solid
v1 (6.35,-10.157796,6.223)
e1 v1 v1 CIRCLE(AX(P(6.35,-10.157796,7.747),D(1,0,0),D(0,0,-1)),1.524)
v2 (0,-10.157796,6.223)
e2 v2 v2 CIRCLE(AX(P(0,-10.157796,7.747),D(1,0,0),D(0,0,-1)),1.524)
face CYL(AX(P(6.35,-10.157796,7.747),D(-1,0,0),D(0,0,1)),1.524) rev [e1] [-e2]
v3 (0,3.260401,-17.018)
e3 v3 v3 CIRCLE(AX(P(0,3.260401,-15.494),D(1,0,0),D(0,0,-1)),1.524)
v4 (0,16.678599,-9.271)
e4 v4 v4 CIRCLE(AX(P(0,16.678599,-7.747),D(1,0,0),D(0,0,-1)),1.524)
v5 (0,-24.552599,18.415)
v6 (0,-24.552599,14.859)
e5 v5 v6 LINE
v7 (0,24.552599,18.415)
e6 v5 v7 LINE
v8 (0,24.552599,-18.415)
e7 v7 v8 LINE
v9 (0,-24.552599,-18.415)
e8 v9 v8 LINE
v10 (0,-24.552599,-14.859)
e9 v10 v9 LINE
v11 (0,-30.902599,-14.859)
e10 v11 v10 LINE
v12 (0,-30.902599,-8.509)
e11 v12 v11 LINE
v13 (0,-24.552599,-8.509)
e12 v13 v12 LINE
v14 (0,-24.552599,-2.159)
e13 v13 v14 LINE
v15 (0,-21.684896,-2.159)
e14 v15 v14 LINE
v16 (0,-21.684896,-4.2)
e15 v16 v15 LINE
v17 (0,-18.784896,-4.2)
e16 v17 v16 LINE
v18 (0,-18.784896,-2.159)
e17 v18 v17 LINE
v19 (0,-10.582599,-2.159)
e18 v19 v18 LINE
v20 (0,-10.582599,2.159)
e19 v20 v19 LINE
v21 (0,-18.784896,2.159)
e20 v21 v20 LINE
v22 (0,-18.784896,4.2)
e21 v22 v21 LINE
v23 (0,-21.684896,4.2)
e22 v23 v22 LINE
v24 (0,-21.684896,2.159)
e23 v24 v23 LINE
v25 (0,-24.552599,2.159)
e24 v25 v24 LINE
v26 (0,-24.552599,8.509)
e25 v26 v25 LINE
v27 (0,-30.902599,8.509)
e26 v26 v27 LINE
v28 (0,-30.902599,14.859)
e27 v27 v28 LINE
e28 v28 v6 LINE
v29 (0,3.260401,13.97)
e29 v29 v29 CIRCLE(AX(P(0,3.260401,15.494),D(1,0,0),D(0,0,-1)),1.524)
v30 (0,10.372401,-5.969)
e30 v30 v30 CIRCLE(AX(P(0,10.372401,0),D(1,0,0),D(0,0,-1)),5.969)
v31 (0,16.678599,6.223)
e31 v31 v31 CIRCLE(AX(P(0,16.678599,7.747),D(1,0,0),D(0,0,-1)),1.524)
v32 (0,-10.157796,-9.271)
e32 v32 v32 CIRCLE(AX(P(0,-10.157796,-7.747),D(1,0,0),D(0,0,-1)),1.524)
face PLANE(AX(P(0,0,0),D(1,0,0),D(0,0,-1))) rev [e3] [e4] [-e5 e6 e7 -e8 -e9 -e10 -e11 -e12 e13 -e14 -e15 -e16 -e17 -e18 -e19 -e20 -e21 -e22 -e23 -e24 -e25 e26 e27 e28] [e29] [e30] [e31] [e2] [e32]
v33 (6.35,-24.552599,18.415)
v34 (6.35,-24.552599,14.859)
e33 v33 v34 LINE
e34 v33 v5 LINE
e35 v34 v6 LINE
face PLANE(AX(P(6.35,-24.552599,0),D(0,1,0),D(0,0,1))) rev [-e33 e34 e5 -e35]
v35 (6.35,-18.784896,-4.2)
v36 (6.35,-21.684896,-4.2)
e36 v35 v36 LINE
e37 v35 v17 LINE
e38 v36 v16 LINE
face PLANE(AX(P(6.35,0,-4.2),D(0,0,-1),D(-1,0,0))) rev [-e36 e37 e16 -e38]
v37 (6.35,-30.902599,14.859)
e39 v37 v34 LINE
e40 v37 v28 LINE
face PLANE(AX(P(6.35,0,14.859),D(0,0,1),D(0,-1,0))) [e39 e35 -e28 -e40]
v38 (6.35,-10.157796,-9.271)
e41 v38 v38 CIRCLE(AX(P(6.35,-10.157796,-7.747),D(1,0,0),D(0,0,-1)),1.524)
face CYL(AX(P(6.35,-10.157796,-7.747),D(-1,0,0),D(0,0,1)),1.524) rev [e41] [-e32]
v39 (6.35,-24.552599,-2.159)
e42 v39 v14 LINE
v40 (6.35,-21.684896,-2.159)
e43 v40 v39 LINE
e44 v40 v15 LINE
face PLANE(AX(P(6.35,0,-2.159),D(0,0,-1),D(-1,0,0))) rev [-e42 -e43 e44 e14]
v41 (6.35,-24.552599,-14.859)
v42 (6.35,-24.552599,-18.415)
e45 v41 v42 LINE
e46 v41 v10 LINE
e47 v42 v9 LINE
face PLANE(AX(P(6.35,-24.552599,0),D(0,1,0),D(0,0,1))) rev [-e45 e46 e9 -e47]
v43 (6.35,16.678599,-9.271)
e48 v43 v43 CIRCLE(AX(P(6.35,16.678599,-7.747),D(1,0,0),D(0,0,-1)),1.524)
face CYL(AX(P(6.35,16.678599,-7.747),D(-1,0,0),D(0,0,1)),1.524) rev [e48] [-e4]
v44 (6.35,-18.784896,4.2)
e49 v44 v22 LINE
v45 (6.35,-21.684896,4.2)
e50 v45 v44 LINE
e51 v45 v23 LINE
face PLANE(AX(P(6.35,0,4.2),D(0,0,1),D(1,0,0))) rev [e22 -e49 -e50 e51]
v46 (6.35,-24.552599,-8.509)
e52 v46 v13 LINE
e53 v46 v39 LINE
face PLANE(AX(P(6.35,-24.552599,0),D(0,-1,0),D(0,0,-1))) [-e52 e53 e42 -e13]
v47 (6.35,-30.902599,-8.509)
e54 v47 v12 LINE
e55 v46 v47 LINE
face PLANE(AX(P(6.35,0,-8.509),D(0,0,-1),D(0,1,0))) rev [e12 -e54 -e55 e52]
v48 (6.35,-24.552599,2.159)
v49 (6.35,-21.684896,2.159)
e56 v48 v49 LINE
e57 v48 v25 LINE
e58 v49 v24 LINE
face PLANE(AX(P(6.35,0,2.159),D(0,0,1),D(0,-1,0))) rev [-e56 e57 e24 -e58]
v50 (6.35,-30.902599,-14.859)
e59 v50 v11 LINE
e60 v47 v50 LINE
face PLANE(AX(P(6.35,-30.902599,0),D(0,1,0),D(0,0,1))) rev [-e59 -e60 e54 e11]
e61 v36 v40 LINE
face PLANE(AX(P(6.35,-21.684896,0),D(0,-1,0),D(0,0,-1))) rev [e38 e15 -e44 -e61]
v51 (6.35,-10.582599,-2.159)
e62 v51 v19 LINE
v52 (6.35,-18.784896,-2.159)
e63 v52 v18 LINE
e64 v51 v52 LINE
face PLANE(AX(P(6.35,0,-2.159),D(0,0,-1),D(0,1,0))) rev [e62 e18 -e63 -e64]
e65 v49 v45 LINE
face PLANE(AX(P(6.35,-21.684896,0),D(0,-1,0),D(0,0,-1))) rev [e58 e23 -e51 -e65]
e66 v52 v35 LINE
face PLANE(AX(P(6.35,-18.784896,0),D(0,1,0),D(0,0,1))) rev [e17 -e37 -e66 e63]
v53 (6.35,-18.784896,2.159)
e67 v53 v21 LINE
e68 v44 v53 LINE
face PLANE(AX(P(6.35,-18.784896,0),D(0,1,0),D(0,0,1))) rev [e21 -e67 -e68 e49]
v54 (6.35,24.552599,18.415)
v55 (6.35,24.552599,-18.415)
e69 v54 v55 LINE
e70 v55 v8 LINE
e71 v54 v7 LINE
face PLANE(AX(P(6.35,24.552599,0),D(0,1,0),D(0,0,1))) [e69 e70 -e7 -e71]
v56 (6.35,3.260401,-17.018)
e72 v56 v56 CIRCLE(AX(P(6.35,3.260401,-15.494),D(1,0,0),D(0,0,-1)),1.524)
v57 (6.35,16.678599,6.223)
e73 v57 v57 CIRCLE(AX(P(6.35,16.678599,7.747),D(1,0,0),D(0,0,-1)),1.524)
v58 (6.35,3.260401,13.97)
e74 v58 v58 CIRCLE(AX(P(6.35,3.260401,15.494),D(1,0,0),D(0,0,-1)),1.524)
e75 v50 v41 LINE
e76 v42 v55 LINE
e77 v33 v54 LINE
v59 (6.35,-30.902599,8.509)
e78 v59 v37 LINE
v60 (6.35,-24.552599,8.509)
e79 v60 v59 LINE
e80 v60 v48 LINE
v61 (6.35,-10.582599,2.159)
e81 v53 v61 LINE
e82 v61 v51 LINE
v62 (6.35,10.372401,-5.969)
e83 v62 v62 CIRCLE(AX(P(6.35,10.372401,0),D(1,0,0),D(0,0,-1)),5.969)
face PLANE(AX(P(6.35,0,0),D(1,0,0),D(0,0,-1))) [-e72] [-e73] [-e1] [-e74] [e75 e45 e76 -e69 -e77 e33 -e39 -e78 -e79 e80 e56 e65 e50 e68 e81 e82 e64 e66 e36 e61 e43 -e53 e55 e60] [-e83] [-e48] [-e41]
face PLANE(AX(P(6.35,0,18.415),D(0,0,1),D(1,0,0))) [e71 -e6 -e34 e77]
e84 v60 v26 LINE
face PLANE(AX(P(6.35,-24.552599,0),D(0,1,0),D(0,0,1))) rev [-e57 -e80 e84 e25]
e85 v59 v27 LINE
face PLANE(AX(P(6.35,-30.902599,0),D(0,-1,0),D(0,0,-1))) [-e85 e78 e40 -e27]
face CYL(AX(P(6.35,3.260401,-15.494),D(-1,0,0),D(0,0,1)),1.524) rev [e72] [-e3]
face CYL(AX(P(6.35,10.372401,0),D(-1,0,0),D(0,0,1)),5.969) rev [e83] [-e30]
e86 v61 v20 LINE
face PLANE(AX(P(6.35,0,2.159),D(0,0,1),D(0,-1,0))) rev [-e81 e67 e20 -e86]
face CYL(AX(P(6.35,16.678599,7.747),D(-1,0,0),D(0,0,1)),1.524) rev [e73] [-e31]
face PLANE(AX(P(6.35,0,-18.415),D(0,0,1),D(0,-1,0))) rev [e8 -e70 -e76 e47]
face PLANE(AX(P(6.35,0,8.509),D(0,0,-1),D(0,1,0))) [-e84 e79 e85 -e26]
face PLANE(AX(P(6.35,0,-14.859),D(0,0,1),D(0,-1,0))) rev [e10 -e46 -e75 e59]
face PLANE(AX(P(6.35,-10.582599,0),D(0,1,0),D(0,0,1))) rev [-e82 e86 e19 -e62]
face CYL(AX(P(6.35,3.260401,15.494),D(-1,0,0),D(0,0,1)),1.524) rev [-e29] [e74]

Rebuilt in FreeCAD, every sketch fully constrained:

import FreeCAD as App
import Part
import Sketcher
Q = App.Units.Quantity

doc = App.newDocument("Part")
body = doc.addObject("PartDesign::Body", "Body")

# Sketch on YZ plane
sketch1 = body.newObject("Sketcher::SketchObject", "Sketch")
sketch1.AttachmentSupport = (doc.getObject("YZ_Plane"), [""])
sketch1.MapMode = "FlatFace"
sketch1.addGeometry(Part.LineSegment(App.Vector(-24.552599, 18.415, 0), App.Vector(-24.552599, 14.859, 0)), False)
sketch1.addGeometry(Part.LineSegment(App.Vector(-24.552599, 14.859, 0), App.Vector(-30.902599, 14.859, 0)), False)
sketch1.addGeometry(Part.LineSegment(App.Vector(-30.902599, 14.859, 0), App.Vector(-30.902599, 8.509, 0)), False)
sketch1.addGeometry(Part.LineSegment(App.Vector(-30.902599, 8.509, 0), App.Vector(-24.552599, 8.509, 0)), False)
sketch1.addGeometry(Part.LineSegment(App.Vector(-24.552599, 8.509, 0), App.Vector(-24.552599, 2.159, 0)), False)
sketch1.addGeometry(Part.LineSegment(App.Vector(-24.552599, 2.159, 0), App.Vector(-21.684896, 2.159, 0)), False)
sketch1.addGeometry(Part.LineSegment(App.Vector(-21.684896, 2.159, 0), App.Vector(-21.684896, 4.2, 0)), False)
sketch1.addGeometry(Part.LineSegment(App.Vector(-21.684896, 4.2, 0), App.Vector(-18.784896, 4.2, 0)), False)
sketch1.addGeometry(Part.LineSegment(App.Vector(-18.784896, 4.2, 0), App.Vector(-18.784896, 2.159, 0)), False)
sketch1.addGeometry(Part.LineSegment(App.Vector(-18.784896, 2.159, 0), App.Vector(-10.582599, 2.159, 0)), False)
sketch1.addGeometry(Part.LineSegment(App.Vector(-10.582599, 2.159, 0), App.Vector(-10.582599, -2.159, 0)), False)
sketch1.addGeometry(Part.LineSegment(App.Vector(-10.582599, -2.159, 0), App.Vector(-18.784896, -2.159, 0)), False)
sketch1.addGeometry(Part.LineSegment(App.Vector(-18.784896, -2.159, 0), App.Vector(-18.784896, -4.2, 0)), False)
sketch1.addGeometry(Part.LineSegment(App.Vector(-18.784896, -4.2, 0), App.Vector(-21.684896, -4.2, 0)), False)
sketch1.addGeometry(Part.LineSegment(App.Vector(-21.684896, -4.2, 0), App.Vector(-21.684896, -2.159, 0)), False)
sketch1.addGeometry(Part.LineSegment(App.Vector(-21.684896, -2.159, 0), App.Vector(-24.552599, -2.159, 0)), False)
sketch1.addGeometry(Part.LineSegment(App.Vector(-24.552599, -2.159, 0), App.Vector(-24.552599, -8.509, 0)), False)
sketch1.addGeometry(Part.LineSegment(App.Vector(-24.552599, -8.509, 0), App.Vector(-30.902599, -8.509, 0)), False)
sketch1.addGeometry(Part.LineSegment(App.Vector(-30.902599, -8.509, 0), App.Vector(-30.902599, -14.859, 0)), False)
sketch1.addGeometry(Part.LineSegment(App.Vector(-30.902599, -14.859, 0), App.Vector(-24.552599, -14.859, 0)), False)
sketch1.addGeometry(Part.LineSegment(App.Vector(-24.552599, -14.859, 0), App.Vector(-24.552599, -18.415, 0)), False)
sketch1.addGeometry(Part.LineSegment(App.Vector(-24.552599, -18.415, 0), App.Vector(24.552599, -18.415, 0)), False)
sketch1.addGeometry(Part.LineSegment(App.Vector(24.552599, -18.415, 0), App.Vector(24.552599, 18.415, 0)), False)
sketch1.addGeometry(Part.LineSegment(App.Vector(24.552599, 18.415, 0), App.Vector(-24.552599, 18.415, 0)), False)
sketch1.addGeometry(Part.Circle(App.Vector(-10.157796, 7.747, 0), App.Vector(0, 0, 1), 1.524), False)
sketch1.addGeometry(Part.Circle(App.Vector(-10.157796, -7.747, 0), App.Vector(0, 0, 1), 1.524), False)
sketch1.addGeometry(Part.Circle(App.Vector(3.260401, 15.494, 0), App.Vector(0, 0, 1), 1.524), False)
sketch1.addGeometry(Part.Circle(App.Vector(16.678599, 7.747, 0), App.Vector(0, 0, 1), 1.524), False)
sketch1.addGeometry(Part.Circle(App.Vector(10.372401, 0, 0), App.Vector(0, 0, 1), 5.969), False)
sketch1.addGeometry(Part.Circle(App.Vector(3.260401, -15.494, 0), App.Vector(0, 0, 1), 1.524), False)
sketch1.addGeometry(Part.Circle(App.Vector(16.678599, -7.747, 0), App.Vector(0, 0, 1), 1.524), False)
sketch1.addConstraint(Sketcher.Constraint("Coincident", 0, 2, 1, 1))
sketch1.addConstraint(Sketcher.Constraint("Coincident", 1, 2, 2, 1))
sketch1.addConstraint(Sketcher.Constraint("Coincident", 2, 2, 3, 1))
sketch1.addConstraint(Sketcher.Constraint("Coincident", 3, 2, 4, 1))
sketch1.addConstraint(Sketcher.Constraint("Coincident", 4, 2, 5, 1))
sketch1.addConstraint(Sketcher.Constraint("Coincident", 5, 2, 6, 1))
sketch1.addConstraint(Sketcher.Constraint("Coincident", 6, 2, 7, 1))
sketch1.addConstraint(Sketcher.Constraint("Coincident", 7, 2, 8, 1))
sketch1.addConstraint(Sketcher.Constraint("Coincident", 8, 2, 9, 1))
sketch1.addConstraint(Sketcher.Constraint("Coincident", 9, 2, 10, 1))
sketch1.addConstraint(Sketcher.Constraint("Coincident", 10, 2, 11, 1))
sketch1.addConstraint(Sketcher.Constraint("Coincident", 11, 2, 12, 1))
sketch1.addConstraint(Sketcher.Constraint("Coincident", 12, 2, 13, 1))
sketch1.addConstraint(Sketcher.Constraint("Coincident", 13, 2, 14, 1))
sketch1.addConstraint(Sketcher.Constraint("Coincident", 14, 2, 15, 1))
sketch1.addConstraint(Sketcher.Constraint("Coincident", 15, 2, 16, 1))
sketch1.addConstraint(Sketcher.Constraint("Coincident", 16, 2, 17, 1))
sketch1.addConstraint(Sketcher.Constraint("Coincident", 17, 2, 18, 1))
sketch1.addConstraint(Sketcher.Constraint("Coincident", 18, 2, 19, 1))
sketch1.addConstraint(Sketcher.Constraint("Coincident", 19, 2, 20, 1))
sketch1.addConstraint(Sketcher.Constraint("Coincident", 20, 2, 21, 1))
sketch1.addConstraint(Sketcher.Constraint("Coincident", 21, 2, 22, 1))
sketch1.addConstraint(Sketcher.Constraint("Coincident", 22, 2, 23, 1))
sketch1.addConstraint(Sketcher.Constraint("Coincident", 23, 2, 0, 1))
sketch1.addConstraint(Sketcher.Constraint("Vertical", 0))
sketch1.addConstraint(Sketcher.Constraint("Horizontal", 1))
sketch1.addConstraint(Sketcher.Constraint("Vertical", 2))
sketch1.addConstraint(Sketcher.Constraint("Horizontal", 3))
sketch1.addConstraint(Sketcher.Constraint("Vertical", 4))
sketch1.addConstraint(Sketcher.Constraint("Horizontal", 5))
sketch1.addConstraint(Sketcher.Constraint("Vertical", 6))
sketch1.addConstraint(Sketcher.Constraint("Horizontal", 7))
sketch1.addConstraint(Sketcher.Constraint("Vertical", 8))
sketch1.addConstraint(Sketcher.Constraint("Horizontal", 9))
sketch1.addConstraint(Sketcher.Constraint("Vertical", 10))
sketch1.addConstraint(Sketcher.Constraint("Horizontal", 11))
sketch1.addConstraint(Sketcher.Constraint("Vertical", 12))
sketch1.addConstraint(Sketcher.Constraint("Horizontal", 13))
sketch1.addConstraint(Sketcher.Constraint("Vertical", 14))
sketch1.addConstraint(Sketcher.Constraint("Horizontal", 15))
sketch1.addConstraint(Sketcher.Constraint("Vertical", 16))
sketch1.addConstraint(Sketcher.Constraint("Horizontal", 17))
sketch1.addConstraint(Sketcher.Constraint("Vertical", 18))
sketch1.addConstraint(Sketcher.Constraint("Horizontal", 19))
sketch1.addConstraint(Sketcher.Constraint("Vertical", 20))
sketch1.addConstraint(Sketcher.Constraint("Horizontal", 21))
sketch1.addConstraint(Sketcher.Constraint("Vertical", 22))
sketch1.addConstraint(Sketcher.Constraint("Horizontal", 23))
sketch1.addConstraint(Sketcher.Constraint("Equal", 24, 25))
sketch1.addConstraint(Sketcher.Constraint("Equal", 25, 26))
sketch1.addConstraint(Sketcher.Constraint("Equal", 26, 27))
sketch1.addConstraint(Sketcher.Constraint("Equal", 27, 29))
sketch1.addConstraint(Sketcher.Constraint("Equal", 29, 30))
sketch1.addConstraint(Sketcher.Constraint("Symmetric", 20, 2, 22, 2, -1, 1))
sketch1.addConstraint(Sketcher.Constraint("Symmetric", 24, 3, 25, 3, -1))
sketch1.addConstraint(Sketcher.Constraint("Symmetric", 26, 3, 29, 3, -1))
sketch1.addConstraint(Sketcher.Constraint("Symmetric", 27, 3, 30, 3, -1))
sketch1.addConstraint(Sketcher.Constraint("Symmetric", 8, 2, 11, 2, -1))
sketch1.addConstraint(Sketcher.Constraint("Symmetric", 6, 2, 13, 2, -1))
sketch1.addConstraint(Sketcher.Constraint("Symmetric", 4, 2, 15, 2, -1))
sketch1.addConstraint(Sketcher.Constraint("Symmetric", 2, 2, 17, 2, -1))
sketch1.addConstraint(Sketcher.Constraint("Symmetric", 0, 2, 19, 2, -1))
sketch1.addConstraint(Sketcher.Constraint("PointOnObject", 28, 3, -1))
sketch1.addConstraint(Sketcher.Constraint("Horizontal", 24, 3, 27, 3))
sketch1.addConstraint(Sketcher.Constraint("Horizontal", 5, 2, 8, 2))
sketch1.addConstraint(Sketcher.Constraint("Vertical", 0, 2, 3, 2))
sketch1.addConstraint(Sketcher.Constraint("Equal", 19, 2))
sketch1.addConstraint(Sketcher.Constraint("Equal", 2, 4))
sketch1.addConstraint(Sketcher.Constraint("Diameter", 24, Q("0.12 in")))
sketch1.addConstraint(Sketcher.Constraint("Diameter", 28, Q("0.47 in")))
sketch1.addConstraint(Sketcher.Constraint("DistanceX", 1, 2, 1, 1, Q("0.25 in")))
sketch1.addConstraint(Sketcher.Constraint("DistanceY", 0, 2, 0, 1, Q("0.14 in")))
sketch1.addConstraint(Sketcher.Constraint("DistanceY", 10, 2, 10, 1, Q("0.17 in")))
sketch1.addConstraint(Sketcher.Constraint("DistanceY", -1, 1, 26, 3, Q("0.61 in")))
sketch1.addConstraint(Sketcher.Constraint("DistanceY", 25, 3, 24, 3, Q("0.61 in")))
sketch1.addConstraint(Sketcher.Constraint("DistanceX", 26, 3, 28, 3, Q("0.28 in")))
sketch1.addConstraint(Sketcher.Constraint("DistanceX", 30, 3, 21, 2, Q("0.31 in")))
sketch1.addConstraint(Sketcher.Constraint("DistanceX", 0, 2, 26, 3, Q("1.095 in")))
sketch1.addConstraint(Sketcher.Constraint("DistanceX", 7, 1, 7, 2, 2.9))
sketch1.addConstraint(Sketcher.Constraint("DistanceY", 6, 1, 6, 2, 2.041))
sketch1.addConstraint(Sketcher.Constraint("DistanceX", -1, 1, 26, 3, 3.260401))
sketch1.addConstraint(Sketcher.Constraint("DistanceX", 9, 2, -1, 1, 10.582599))
sketch1.addConstraint(Sketcher.Constraint("DistanceX", 5, 2, 24, 3, 11.527099))
sketch1.addConstraint(Sketcher.Constraint("DistanceX", 5, 1, 5, 2, 2.867703))
pad1 = body.newObject("PartDesign::Pad", "Pad")
pad1.Profile = sketch1
pad1.Length = Q("0.25 in")

doc.recompute()
